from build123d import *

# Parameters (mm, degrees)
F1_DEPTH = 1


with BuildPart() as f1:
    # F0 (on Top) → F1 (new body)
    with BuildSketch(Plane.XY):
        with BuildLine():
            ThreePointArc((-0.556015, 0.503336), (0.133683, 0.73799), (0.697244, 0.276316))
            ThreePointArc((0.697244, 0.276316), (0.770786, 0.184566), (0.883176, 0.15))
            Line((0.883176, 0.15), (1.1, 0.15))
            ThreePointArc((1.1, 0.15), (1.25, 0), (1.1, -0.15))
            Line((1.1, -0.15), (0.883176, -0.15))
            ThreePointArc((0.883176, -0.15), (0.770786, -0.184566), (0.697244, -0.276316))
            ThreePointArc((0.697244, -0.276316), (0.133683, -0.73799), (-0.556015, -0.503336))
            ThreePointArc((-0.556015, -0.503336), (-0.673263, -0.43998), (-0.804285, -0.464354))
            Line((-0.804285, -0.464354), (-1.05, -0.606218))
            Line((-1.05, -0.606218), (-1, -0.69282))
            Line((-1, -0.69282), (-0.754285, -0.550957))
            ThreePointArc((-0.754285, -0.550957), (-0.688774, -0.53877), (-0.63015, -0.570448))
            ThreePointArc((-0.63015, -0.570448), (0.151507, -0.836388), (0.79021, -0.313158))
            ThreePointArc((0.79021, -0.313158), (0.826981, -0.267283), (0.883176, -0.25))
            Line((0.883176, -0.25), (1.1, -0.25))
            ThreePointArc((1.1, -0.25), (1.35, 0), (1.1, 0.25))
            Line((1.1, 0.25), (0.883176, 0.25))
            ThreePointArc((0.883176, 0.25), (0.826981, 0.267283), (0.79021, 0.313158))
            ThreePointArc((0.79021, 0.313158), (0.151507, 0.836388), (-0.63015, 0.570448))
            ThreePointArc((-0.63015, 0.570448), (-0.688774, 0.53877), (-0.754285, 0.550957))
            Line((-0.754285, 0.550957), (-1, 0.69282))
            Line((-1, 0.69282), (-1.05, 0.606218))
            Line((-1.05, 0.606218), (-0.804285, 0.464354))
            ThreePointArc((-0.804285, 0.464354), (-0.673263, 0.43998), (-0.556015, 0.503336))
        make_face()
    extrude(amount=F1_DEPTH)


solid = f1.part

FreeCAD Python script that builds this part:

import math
import FreeCAD as App
import Part
import Sketcher

doc = App.newDocument("Part")
body = doc.addObject("PartDesign::Body", "Body")

# Sketch on XY plane
sketch1 = body.newObject("Sketcher::SketchObject", "Sketch")
sketch1.AttachmentSupport = (doc.getObject("XY_Plane"), [""])
sketch1.MapMode = "FlatFace"
sketch1.addGeometry([
    Part.ArcOfCircle(Part.Circle(App.Vector(0, 0, 0), App.Vector(0, 0, 1), 0.75), math.radians(22), math.radians(138)),  # 0
    Part.ArcOfCircle(Part.Circle(App.Vector(0.88, 0.35, 0), App.Vector(0, 0, 1), 0.2), math.radians(-158), math.radians(-90)),  # 1
    Part.LineSegment(App.Vector(0.88, 0.15, 0), App.Vector(1.1, 0.15, 0)),  # 2
    Part.ArcOfCircle(Part.Circle(App.Vector(1.1, 0, 0), App.Vector(0, 0, 1), 0.15), math.radians(-90), math.radians(90)),  # 3
    Part.LineSegment(App.Vector(1.1, -0.15, 0), App.Vector(0.88, -0.15, 0)),  # 4
    Part.ArcOfCircle(Part.Circle(App.Vector(0.88, -0.35, 0), App.Vector(0, 0, 1), 0.2), math.radians(90), math.radians(158)),  # 5
    Part.ArcOfCircle(Part.Circle(App.Vector(0, 0, 0), App.Vector(0, 0, 1), 0.75), math.radians(-138), math.radians(-22)),  # 6
    Part.ArcOfCircle(Part.Circle(App.Vector(-0.7, -0.64, 0), App.Vector(0, 0, 1), 0.2), math.radians(42), math.radians(120)),  # 7
    Part.LineSegment(App.Vector(-0.8, -0.46, 0), App.Vector(-1.05, -0.61, 0)),  # 8
    Part.LineSegment(App.Vector(-1.05, -0.61, 0), App.Vector(-1, -0.69, 0)),  # 9
    Part.LineSegment(App.Vector(-1, -0.69, 0), App.Vector(-0.75, -0.55, 0)),  # 10
    Part.ArcOfCircle(Part.Circle(App.Vector(-0.7, -0.64, 0), App.Vector(0, 0, 1), 0.1), math.radians(42), math.radians(120)),  # 11
    Part.ArcOfCircle(Part.Circle(App.Vector(0, 0, 0), App.Vector(0, 0, 1), 0.85), math.radians(-138), math.radians(-22)),  # 12
    Part.ArcOfCircle(Part.Circle(App.Vector(0.88, -0.35, 0), App.Vector(0, 0, 1), 0.1), math.radians(90), math.radians(158)),  # 13
    Part.LineSegment(App.Vector(0.88, -0.25, 0), App.Vector(1.1, -0.25, 0)),  # 14
    Part.ArcOfCircle(Part.Circle(App.Vector(1.1, 0, 0), App.Vector(0, 0, 1), 0.25), math.radians(-90), math.radians(90)),  # 15
    Part.LineSegment(App.Vector(1.1, 0.25, 0), App.Vector(0.88, 0.25, 0)),  # 16
    Part.ArcOfCircle(Part.Circle(App.Vector(0.88, 0.35, 0), App.Vector(0, 0, 1), 0.1), math.radians(-158), math.radians(-90)),  # 17
    Part.ArcOfCircle(Part.Circle(App.Vector(0, 0, 0), App.Vector(0, 0, 1), 0.85), math.radians(22), math.radians(138)),  # 18
    Part.ArcOfCircle(Part.Circle(App.Vector(-0.7, 0.64, 0), App.Vector(0, 0, 1), 0.1), math.radians(-120), math.radians(-42)),  # 19
    Part.LineSegment(App.Vector(-0.75, 0.55, 0), App.Vector(-1, 0.69, 0)),  # 20
    Part.LineSegment(App.Vector(-1, 0.69, 0), App.Vector(-1.05, 0.61, 0)),  # 21
    Part.LineSegment(App.Vector(-1.05, 0.61, 0), App.Vector(-0.8, 0.46, 0)),  # 22
    Part.ArcOfCircle(Part.Circle(App.Vector(-0.7, 0.64, 0), App.Vector(0, 0, 1), 0.2), math.radians(-120), math.radians(-42)),  # 23
], False)
sketch1.addConstraint([
    Sketcher.Constraint("Coincident", 0, 1, 1, 1),
    Sketcher.Constraint("Coincident", 1, 2, 2, 1),
    Sketcher.Constraint("Tangent", 2, 2, 3, 2),
    Sketcher.Constraint("Tangent", 3, 1, 4, 1),
    Sketcher.Constraint("Coincident", 4, 2, 5, 1),
    Sketcher.Constraint("Coincident", 5, 2, 6, 2),
    Sketcher.Constraint("Coincident", 6, 1, 7, 1),
    Sketcher.Constraint("Coincident", 7, 2, 8, 1),
    Sketcher.Constraint("Coincident", 8, 2, 9, 1),
    Sketcher.Constraint("Coincident", 9, 2, 10, 1),
    Sketcher.Constraint("Tangent", 10, 2, 11, 2),
    Sketcher.Constraint("Tangent", 11, 1, 12, 1),
    Sketcher.Constraint("Coincident", 12, 2, 13, 2),
    Sketcher.Constraint("Coincident", 13, 1, 14, 1),
    Sketcher.Constraint("Tangent", 14, 2, 15, 1),
    Sketcher.Constraint("Tangent", 15, 2, 16, 1),
    Sketcher.Constraint("Coincident", 16, 2, 17, 2),
    Sketcher.Constraint("Coincident", 17, 1, 18, 1),
    Sketcher.Constraint("Tangent", 18, 2, 19, 2),
    Sketcher.Constraint("Tangent", 19, 1, 20, 1),
    Sketcher.Constraint("Coincident", 20, 2, 21, 1),
    Sketcher.Constraint("Coincident", 21, 2, 22, 1),
    Sketcher.Constraint("Coincident", 22, 2, 23, 1),
    Sketcher.Constraint("Coincident", 23, 2, 0, 2),
    Sketcher.Constraint("Horizontal", 2),
    Sketcher.Constraint("Horizontal", 4),
    Sketcher.Constraint("Horizontal", 14),
    Sketcher.Constraint("Horizontal", 16),
    Sketcher.Constraint("Coincident", 0, 3, -1, 1),
    Sketcher.Constraint("Coincident", 6, 3, -1, 1),
    Sketcher.Constraint("Coincident", 12, 3, -1, 1),
    Sketcher.Constraint("Coincident", 18, 3, -1, 1),
    Sketcher.Constraint("Coincident", 11, 3, 7, 3),
    Sketcher.Constraint("Coincident", 13, 3, 5, 3),
    Sketcher.Constraint("Coincident", 15, 3, 3, 3),
    Sketcher.Constraint("Coincident", 17, 3, 1, 3),
    Sketcher.Constraint("Coincident", 23, 3, 19, 3),
    Sketcher.Constraint("Equal", 1, 5),
    Sketcher.Constraint("Equal", 0, 6),
    Sketcher.Constraint("Equal", 5, 7),
    Sketcher.Constraint("Equal", 17, 19),
    Sketcher.Constraint("Symmetric", 1, 2, 4, 2, -1),
    Sketcher.Constraint("Symmetric", 10, 2, 19, 1, -1),
    Sketcher.Constraint("Symmetric", 8, 2, 21, 2, -1),
    Sketcher.Constraint("Perpendicular", 8, 9),
    Sketcher.Constraint("Perpendicular", 21, 22),
    Sketcher.Constraint("Vertical", 17, 3, 1, 2),
    Sketcher.Constraint("Vertical", 0, 1, 5, 2),
    Sketcher.Constraint("Vertical", 4, 2, 13, 1),
    Sketcher.Constraint("Vertical", 13, 1, 16, 2),
    Sketcher.Constraint("Vertical", 12, 2, 17, 1),
    Sketcher.Constraint("Vertical", 7, 2, 22, 2),
    Sketcher.Constraint("Vertical", 6, 1, 23, 2),
    Sketcher.Constraint("Equal", 8, 10),
    Sketcher.Constraint("Radius", 1, 0.200001),
    Sketcher.Constraint("Radius", 11, 0.1),
    Sketcher.Constraint("Radius", 0, 0.749999),
    Sketcher.Constraint("Radius", 3, 0.15),
    Sketcher.Constraint("DistanceX", 9, 2, -1, 1, 1.0),
    Sketcher.Constraint("Distance", 9, 0.1),
    Sketcher.Constraint("DistanceX", -1, 1, 3, 3, 1.1),
    Sketcher.Constraint("DistanceX", 7, 2, 7, 3, 0.1),
    Sketcher.Constraint("DistanceY", 7, 3, -1, 1, 0.63756),
    Sketcher.Constraint("DistanceX", -1, 1, 12, 2, 0.79021),
    Sketcher.Constraint("DistanceX", 5, 2, 4, 2, 0.185932),
    Sketcher.Constraint("DistanceX", 11, 3, 6, 1, 0.14827),
])
pad1 = body.newObject("PartDesign::Pad", "Pad")
pad1.Profile = sketch1
pad1.Length = 1

doc.recompute()
